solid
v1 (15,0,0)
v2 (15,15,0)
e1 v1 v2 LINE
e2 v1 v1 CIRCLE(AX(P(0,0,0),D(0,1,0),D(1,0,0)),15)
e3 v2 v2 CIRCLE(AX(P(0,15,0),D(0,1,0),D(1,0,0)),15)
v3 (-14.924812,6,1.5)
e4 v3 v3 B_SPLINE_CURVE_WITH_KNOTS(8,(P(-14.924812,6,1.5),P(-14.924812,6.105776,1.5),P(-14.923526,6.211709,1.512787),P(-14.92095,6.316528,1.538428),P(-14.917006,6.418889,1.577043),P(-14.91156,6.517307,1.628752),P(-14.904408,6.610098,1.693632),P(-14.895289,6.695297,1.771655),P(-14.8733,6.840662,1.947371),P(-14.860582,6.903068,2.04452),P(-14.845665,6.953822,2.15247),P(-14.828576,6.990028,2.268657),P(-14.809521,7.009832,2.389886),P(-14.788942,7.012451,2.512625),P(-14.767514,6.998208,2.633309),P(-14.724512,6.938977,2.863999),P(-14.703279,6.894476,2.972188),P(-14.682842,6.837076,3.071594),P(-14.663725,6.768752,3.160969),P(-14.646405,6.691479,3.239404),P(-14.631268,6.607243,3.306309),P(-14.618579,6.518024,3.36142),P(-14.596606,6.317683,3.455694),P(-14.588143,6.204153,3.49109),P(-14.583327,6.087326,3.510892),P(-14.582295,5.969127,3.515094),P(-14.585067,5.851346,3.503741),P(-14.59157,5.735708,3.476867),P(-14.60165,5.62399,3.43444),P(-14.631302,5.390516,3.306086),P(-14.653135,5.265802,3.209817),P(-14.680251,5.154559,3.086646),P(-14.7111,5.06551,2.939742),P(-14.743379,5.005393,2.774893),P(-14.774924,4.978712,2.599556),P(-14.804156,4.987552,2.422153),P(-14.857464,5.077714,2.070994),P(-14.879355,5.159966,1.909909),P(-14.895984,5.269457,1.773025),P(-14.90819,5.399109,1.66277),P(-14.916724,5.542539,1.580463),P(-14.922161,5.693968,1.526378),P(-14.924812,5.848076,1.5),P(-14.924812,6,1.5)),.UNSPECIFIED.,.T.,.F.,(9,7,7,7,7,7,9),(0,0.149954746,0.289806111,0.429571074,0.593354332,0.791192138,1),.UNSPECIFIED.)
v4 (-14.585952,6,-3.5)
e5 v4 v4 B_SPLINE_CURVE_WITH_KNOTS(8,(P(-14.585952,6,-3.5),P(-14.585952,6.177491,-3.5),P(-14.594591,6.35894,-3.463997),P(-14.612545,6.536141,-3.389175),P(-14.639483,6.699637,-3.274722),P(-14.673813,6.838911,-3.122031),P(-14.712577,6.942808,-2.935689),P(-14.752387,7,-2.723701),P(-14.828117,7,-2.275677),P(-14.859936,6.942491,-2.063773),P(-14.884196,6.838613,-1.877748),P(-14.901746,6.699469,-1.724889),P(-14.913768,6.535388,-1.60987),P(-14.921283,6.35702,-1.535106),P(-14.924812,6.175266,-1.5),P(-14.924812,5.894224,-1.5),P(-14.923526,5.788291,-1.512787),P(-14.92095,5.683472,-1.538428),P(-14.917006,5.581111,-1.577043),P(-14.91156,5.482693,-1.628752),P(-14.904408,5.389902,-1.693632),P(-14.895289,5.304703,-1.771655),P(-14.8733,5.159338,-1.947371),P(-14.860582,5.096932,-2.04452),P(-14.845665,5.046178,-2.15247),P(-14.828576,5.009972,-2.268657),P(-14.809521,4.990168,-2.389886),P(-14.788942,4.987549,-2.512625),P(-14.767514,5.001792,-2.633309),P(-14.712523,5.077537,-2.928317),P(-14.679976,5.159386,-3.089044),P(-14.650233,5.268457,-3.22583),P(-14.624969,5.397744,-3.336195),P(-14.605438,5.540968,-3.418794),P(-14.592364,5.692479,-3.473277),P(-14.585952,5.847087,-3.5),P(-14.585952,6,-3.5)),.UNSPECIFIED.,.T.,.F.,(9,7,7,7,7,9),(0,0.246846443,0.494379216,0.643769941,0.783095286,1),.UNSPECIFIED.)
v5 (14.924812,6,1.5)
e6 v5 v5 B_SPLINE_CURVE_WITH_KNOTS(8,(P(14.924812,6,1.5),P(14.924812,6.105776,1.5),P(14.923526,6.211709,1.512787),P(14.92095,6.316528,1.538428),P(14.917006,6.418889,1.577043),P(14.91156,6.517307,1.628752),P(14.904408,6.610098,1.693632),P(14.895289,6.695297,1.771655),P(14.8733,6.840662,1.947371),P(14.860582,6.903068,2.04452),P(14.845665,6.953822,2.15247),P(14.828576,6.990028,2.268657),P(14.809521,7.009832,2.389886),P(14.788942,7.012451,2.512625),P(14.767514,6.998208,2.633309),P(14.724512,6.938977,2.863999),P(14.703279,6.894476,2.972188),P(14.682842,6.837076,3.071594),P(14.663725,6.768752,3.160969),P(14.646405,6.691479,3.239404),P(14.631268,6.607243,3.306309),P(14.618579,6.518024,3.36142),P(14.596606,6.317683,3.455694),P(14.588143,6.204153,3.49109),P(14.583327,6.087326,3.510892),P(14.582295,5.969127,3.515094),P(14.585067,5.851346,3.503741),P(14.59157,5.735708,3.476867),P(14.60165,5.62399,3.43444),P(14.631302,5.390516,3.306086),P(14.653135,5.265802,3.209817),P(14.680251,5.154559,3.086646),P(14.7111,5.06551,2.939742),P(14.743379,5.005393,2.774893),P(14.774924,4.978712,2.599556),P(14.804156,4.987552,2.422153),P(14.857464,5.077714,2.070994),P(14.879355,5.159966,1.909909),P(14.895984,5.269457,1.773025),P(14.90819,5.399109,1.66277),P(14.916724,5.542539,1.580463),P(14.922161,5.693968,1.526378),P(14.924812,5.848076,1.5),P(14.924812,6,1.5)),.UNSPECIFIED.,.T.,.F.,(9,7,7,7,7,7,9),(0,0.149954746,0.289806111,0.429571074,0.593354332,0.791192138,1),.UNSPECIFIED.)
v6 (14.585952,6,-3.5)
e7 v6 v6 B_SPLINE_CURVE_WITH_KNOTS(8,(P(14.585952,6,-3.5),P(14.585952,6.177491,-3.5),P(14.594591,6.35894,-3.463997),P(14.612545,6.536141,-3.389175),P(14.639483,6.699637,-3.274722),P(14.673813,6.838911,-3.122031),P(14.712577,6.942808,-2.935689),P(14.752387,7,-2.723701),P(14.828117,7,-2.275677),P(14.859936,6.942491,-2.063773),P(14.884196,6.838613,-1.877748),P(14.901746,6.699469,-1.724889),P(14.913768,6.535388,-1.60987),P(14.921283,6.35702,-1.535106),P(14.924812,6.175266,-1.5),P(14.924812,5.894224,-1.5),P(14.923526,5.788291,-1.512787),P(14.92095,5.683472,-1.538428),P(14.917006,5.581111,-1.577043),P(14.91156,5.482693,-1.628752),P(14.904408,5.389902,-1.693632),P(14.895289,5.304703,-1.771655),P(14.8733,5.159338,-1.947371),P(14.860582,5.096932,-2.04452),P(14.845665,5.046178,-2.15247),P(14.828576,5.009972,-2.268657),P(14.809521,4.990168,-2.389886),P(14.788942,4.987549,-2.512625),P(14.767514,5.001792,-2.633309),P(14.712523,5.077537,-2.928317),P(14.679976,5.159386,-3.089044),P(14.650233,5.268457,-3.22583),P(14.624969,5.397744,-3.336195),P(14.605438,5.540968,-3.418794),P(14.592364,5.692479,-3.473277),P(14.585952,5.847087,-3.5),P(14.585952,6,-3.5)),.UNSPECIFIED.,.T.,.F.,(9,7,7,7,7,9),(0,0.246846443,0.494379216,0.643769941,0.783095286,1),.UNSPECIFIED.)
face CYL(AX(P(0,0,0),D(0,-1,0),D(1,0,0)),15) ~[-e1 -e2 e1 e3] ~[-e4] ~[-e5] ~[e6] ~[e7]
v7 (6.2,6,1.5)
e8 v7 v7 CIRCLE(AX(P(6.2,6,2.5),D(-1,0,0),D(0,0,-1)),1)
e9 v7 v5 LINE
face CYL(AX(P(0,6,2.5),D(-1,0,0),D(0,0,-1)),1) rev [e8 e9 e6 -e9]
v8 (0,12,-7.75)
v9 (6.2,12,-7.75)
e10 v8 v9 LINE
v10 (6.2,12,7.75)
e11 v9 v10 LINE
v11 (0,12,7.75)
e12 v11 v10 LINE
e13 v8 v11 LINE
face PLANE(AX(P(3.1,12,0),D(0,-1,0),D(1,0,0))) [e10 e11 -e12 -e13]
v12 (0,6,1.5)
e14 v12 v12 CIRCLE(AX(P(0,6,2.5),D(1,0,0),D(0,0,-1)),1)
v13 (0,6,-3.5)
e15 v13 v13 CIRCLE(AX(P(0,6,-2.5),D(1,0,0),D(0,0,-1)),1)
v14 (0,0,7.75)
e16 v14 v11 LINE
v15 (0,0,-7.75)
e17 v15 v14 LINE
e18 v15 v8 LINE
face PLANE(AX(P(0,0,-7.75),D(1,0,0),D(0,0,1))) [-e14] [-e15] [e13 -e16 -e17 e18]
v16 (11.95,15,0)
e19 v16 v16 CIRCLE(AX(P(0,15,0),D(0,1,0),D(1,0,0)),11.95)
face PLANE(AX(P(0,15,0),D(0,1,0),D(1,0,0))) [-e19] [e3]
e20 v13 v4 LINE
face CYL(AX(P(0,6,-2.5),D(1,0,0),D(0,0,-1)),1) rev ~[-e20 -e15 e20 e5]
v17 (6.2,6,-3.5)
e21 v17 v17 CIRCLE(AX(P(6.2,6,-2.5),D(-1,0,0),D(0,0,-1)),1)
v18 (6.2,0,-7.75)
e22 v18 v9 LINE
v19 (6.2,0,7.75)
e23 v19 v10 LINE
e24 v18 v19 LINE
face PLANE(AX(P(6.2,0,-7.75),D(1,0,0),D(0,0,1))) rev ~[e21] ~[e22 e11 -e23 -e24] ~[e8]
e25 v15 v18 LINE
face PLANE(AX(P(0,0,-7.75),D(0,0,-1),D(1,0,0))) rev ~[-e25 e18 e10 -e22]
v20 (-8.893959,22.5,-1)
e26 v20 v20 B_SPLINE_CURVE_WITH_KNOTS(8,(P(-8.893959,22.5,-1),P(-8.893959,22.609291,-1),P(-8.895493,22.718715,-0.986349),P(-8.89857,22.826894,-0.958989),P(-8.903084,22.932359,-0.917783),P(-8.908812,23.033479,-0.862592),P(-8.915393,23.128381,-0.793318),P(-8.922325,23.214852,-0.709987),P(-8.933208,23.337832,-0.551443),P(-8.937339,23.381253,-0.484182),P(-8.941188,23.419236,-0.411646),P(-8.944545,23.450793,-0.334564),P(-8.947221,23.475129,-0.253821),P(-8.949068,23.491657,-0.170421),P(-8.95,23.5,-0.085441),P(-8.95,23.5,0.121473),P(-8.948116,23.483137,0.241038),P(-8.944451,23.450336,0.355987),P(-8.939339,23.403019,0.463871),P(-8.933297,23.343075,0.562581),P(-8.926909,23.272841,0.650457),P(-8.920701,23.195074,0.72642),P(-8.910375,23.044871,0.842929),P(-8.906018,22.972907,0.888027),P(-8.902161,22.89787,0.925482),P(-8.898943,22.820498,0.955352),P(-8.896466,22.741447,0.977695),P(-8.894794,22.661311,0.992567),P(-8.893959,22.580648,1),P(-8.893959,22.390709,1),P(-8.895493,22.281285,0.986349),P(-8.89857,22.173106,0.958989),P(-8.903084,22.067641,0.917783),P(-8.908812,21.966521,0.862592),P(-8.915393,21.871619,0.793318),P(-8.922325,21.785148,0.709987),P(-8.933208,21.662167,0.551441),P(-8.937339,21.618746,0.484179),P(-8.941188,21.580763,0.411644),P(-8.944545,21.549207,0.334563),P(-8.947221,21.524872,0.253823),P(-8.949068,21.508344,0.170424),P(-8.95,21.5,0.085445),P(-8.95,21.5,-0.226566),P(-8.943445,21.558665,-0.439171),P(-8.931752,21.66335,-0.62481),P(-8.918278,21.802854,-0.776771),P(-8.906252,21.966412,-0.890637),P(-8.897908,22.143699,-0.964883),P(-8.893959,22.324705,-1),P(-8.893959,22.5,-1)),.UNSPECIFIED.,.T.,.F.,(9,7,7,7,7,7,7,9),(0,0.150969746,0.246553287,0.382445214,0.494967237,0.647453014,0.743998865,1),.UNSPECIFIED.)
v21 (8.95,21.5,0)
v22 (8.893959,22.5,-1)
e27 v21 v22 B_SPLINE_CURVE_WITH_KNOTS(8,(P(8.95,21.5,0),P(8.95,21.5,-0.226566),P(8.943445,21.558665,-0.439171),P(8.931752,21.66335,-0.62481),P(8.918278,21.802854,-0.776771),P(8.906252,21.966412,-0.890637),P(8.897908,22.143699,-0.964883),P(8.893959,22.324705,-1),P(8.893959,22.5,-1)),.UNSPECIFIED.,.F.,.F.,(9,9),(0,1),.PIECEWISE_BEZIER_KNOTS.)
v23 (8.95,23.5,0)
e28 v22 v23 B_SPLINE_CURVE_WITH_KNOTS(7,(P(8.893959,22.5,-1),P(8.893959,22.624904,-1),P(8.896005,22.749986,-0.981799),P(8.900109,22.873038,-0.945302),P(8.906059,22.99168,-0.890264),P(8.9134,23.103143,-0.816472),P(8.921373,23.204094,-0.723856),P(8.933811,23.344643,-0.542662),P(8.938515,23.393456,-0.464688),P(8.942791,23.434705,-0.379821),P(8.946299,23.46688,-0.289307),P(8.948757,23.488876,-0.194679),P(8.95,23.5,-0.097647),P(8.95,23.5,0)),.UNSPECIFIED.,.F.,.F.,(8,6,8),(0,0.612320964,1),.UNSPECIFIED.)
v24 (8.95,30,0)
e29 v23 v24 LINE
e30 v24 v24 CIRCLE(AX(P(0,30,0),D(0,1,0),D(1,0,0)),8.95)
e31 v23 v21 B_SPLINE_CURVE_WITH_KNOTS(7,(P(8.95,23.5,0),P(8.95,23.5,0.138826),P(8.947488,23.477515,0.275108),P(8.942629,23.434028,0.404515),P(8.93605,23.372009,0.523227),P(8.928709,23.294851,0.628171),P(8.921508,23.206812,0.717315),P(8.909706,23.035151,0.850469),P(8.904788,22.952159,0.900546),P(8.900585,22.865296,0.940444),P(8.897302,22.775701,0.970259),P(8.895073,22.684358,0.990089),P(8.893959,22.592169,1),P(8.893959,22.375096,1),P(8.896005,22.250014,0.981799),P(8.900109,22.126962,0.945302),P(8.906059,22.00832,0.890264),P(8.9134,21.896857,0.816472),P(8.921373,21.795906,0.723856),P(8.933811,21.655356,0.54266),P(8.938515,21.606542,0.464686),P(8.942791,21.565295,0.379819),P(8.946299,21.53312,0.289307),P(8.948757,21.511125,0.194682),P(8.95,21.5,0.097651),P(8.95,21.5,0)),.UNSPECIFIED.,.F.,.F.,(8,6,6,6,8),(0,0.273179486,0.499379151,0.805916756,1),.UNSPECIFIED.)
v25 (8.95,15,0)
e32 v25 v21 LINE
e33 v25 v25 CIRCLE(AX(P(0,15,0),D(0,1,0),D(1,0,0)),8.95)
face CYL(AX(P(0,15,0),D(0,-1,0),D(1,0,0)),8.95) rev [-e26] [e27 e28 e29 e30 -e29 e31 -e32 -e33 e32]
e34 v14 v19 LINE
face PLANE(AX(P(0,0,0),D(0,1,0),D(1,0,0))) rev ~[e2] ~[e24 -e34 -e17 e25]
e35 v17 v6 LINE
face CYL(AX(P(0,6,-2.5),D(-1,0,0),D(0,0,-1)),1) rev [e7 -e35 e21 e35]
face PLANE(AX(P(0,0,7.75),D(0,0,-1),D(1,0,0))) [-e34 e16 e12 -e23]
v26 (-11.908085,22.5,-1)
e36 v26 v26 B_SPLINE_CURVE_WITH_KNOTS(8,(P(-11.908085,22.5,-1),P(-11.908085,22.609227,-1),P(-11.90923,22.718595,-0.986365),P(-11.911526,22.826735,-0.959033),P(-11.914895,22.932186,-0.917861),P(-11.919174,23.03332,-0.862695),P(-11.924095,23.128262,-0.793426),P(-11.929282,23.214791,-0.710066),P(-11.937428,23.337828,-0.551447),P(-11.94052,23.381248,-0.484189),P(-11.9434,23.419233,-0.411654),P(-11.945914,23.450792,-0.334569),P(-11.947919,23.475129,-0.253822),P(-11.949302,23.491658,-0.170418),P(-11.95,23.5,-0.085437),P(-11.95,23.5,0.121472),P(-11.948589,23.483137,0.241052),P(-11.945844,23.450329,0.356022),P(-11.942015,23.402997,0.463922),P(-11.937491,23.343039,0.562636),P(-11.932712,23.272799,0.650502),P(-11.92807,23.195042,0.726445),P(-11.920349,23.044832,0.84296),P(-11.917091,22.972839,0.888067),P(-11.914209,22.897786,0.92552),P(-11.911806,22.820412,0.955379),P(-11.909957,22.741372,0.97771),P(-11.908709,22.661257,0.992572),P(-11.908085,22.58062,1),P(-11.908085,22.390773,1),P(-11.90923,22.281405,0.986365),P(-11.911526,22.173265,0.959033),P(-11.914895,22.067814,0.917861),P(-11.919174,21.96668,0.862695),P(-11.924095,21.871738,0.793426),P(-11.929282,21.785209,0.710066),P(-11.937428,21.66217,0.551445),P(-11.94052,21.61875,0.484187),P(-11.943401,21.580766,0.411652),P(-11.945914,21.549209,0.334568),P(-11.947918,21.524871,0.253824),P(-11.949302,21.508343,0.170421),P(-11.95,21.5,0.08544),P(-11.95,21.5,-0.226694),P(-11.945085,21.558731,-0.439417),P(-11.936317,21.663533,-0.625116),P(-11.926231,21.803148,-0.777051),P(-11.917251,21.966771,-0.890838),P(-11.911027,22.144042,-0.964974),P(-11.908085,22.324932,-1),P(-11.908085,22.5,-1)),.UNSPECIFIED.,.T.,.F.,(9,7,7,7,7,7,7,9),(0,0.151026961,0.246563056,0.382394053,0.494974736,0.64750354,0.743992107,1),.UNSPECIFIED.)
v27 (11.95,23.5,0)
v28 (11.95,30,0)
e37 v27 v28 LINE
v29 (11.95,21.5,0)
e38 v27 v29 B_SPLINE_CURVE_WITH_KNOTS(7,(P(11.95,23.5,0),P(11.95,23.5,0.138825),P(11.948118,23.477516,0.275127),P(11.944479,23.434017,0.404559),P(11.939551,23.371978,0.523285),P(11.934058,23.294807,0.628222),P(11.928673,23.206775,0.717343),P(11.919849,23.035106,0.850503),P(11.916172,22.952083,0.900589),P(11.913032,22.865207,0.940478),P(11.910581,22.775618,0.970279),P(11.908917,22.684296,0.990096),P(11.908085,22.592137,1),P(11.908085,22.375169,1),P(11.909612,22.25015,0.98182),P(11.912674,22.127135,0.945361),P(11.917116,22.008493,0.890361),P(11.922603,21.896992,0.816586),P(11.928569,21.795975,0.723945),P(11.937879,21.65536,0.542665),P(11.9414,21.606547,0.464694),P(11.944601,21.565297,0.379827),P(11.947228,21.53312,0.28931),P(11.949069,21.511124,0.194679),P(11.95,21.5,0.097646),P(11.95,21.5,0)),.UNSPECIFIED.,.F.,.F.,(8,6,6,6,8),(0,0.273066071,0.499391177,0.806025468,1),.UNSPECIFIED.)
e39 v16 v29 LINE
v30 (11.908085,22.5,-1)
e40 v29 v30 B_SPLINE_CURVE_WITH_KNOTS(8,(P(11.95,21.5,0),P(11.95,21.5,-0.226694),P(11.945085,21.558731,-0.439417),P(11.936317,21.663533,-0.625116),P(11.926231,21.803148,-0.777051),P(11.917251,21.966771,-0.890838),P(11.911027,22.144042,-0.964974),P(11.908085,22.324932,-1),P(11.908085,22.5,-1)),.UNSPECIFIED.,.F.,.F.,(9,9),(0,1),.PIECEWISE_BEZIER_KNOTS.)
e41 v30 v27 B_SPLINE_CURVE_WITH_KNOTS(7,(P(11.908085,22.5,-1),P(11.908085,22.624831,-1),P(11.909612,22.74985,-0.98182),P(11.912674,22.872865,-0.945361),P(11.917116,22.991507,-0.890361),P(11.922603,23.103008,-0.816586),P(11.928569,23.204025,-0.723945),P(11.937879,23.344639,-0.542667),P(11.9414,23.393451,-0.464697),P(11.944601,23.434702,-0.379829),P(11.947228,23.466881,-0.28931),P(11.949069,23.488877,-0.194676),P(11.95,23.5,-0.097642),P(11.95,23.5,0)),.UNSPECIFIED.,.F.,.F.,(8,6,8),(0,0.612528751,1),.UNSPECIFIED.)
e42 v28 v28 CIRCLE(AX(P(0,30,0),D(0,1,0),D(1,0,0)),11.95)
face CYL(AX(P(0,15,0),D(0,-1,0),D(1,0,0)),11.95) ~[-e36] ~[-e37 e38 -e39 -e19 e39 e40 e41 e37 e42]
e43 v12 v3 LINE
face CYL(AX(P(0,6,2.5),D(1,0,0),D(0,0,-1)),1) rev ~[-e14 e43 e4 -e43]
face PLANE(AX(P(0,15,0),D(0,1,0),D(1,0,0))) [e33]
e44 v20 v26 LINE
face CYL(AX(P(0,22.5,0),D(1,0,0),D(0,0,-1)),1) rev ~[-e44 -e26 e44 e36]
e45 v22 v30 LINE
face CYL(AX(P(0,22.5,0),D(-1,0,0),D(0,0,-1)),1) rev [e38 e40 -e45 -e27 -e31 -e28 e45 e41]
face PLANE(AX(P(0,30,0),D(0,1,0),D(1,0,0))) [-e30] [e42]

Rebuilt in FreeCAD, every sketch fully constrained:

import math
import FreeCAD as App
import Part
import Sketcher

V = App.Vector

doc = App.newDocument("Part")
body = doc.addObject("PartDesign::Body", "Body")

# Sketch on XZ plane
sketch1 = doc.addObject("Sketcher::SketchObject", "Sketch")
body.addObject(sketch1)
sketch1.AttachmentSupport = (doc.XZ_Plane, [""])
sketch1.MapMode = "FlatFace"
sketch1.addGeometry(Part.Circle(V(0, 0, 0), V(0, 0, 1), 15), False)
sketch1.addConstraint(Sketcher.Constraint("Coincident", 0, 3, -1, 1))
sketch1.addConstraint(Sketcher.Constraint("Diameter", 0, 30.0))
pad1 = doc.addObject("PartDesign::Pad", "Pad")
body.addObject(pad1)
pad1.Profile = sketch1
pad1.Length = 15
pad1.Reversed = True

# Sketch on XZ plane
sketch2 = doc.addObject("Sketcher::SketchObject", "Sketch001")
body.addObject(sketch2)
sketch2.AttachmentSupport = (doc.XZ_Plane, [""])
sketch2.MapMode = "FlatFace"
sketch2.AttachmentOffset = App.Placement(V(0, 0, -15), App.Rotation())
sketch2.addGeometry(Part.Circle(V(0, 0, 0), V(0, 0, 1), 12), False)
sketch2.addGeometry(Part.Circle(V(0, 0, 0), V(0, 0, 1), 9), False)
sketch2.addConstraint(Sketcher.Constraint("Coincident", 0, 3, -1, 1))
sketch2.addConstraint(Sketcher.Constraint("Coincident", 1, 3, -1, 1))
sketch2.addConstraint(Sketcher.Constraint("Diameter", 0, 23.9))
sketch2.addConstraint(Sketcher.Constraint("Diameter", 1, 17.9))
pad2 = doc.addObject("PartDesign::Pad", "Pad001")
body.addObject(pad2)
pad2.Profile = sketch2
pad2.Type = "TwoLengths"
pad2.Length = 15
pad2.Length2 = 3
pad2.Reversed = True

# Sketch on YZ plane
sketch3 = doc.addObject("Sketcher::SketchObject", "Sketch002")
body.addObject(sketch3)
sketch3.AttachmentSupport = (doc.YZ_Plane, [""])
sketch3.MapMode = "FlatFace"
sketch3.addGeometry(Part.Circle(V(22.5, 0, 0), V(0, 0, 1), 1), False)
sketch3.addGeometry(Part.Circle(V(6, 2.5, 0), V(0, 0, 1), 1), False)
sketch3.addGeometry(Part.Circle(V(6, -2.5, 0), V(0, 0, 1), 1), False)
sketch3.addConstraint(Sketcher.Constraint("Equal", 0, 1))
sketch3.addConstraint(Sketcher.Constraint("Equal", 1, 2))
sketch3.addConstraint(Sketcher.Constraint("Symmetric", 1, 3, 2, 3, -1))
sketch3.addConstraint(Sketcher.Constraint("PointOnObject", 0, 3, -1))
sketch3.addConstraint(Sketcher.Constraint("Diameter", 0, 2.0))
sketch3.addConstraint(Sketcher.Constraint("DistanceX", -1, 1, 1, 3, 6.0))
sketch3.addConstraint(Sketcher.Constraint("DistanceY", 2, 3, 1, 3, 5.0))
sketch3.addConstraint(Sketcher.Constraint("DistanceX", -1, 1, 0, 3, 22.5))
pocket1 = doc.addObject("PartDesign::Pocket", "Pocket")
body.addObject(pocket1)
pocket1.Profile = sketch3
pocket1.Type = "ThroughAll"
pocket1.Midplane = True

# Sketch on YZ plane
sketch4 = doc.addObject("Sketcher::SketchObject", "Sketch003")
body.addObject(sketch4)
sketch4.AttachmentSupport = (doc.YZ_Plane, [""])
sketch4.MapMode = "FlatFace"
sketch4.addGeometry(Part.LineSegment(V(0, -11, 0), V(0, 11, 0)), False)
sketch4.addGeometry(Part.LineSegment(V(0, 11, 0), V(-12, 11, 0)), False)
sketch4.addGeometry(Part.ArcOfCircle(Part.Circle(V(-12, 21, 0), V(0, 0, 1), 10), math.radians(-143), math.radians(-90)), False)
sketch4.addGeometry(Part.ArcOfCircle(Part.Circle(V(-40, 0, 0), V(0, 0, 1), 25), math.radians(37), math.radians(323)), False)
sketch4.addGeometry(Part.ArcOfCircle(Part.Circle(V(-12, -21, 0), V(0, 0, 1), 10), math.radians(90), math.radians(143)), False)
sketch4.addGeometry(Part.LineSegment(V(-12, -11, 0), V(0, -11, 0)), False)
sketch4.addGeometry(Part.Circle(V(-40, 0, 0), V(0, 0, 1), 11), False)
sketch4.addConstraint(Sketcher.Constraint("Coincident", 0, 2, 1, 1))
sketch4.addConstraint(Sketcher.Constraint("Tangent", 1, 2, 2, 2))
sketch4.addConstraint(Sketcher.Constraint("Tangent", 2, 1, 3, 1))
sketch4.addConstraint(Sketcher.Constraint("Tangent", 3, 2, 4, 2))
sketch4.addConstraint(Sketcher.Constraint("Tangent", 4, 1, 5, 1))
sketch4.addConstraint(Sketcher.Constraint("Coincident", 5, 2, 0, 1))
sketch4.addConstraint(Sketcher.Constraint("Vertical", 0))
sketch4.addConstraint(Sketcher.Constraint("Horizontal", 1))
sketch4.addConstraint(Sketcher.Constraint("Horizontal", 5))
sketch4.addConstraint(Sketcher.Constraint("Coincident", 6, 3, 3, 3))
sketch4.addConstraint(Sketcher.Constraint("Equal", 2, 4))
sketch4.addConstraint(Sketcher.Constraint("Symmetric", 0, 2, 5, 2, -1, 1))
sketch4.addConstraint(Sketcher.Constraint("PointOnObject", 3, 3, -1))
sketch4.addConstraint(Sketcher.Constraint("Diameter", 6, 22.0))
sketch4.addConstraint(Sketcher.Constraint("Radius", 2, 10.0))
sketch4.addConstraint(Sketcher.Constraint("Radius", 3, 25.0))
sketch4.addConstraint(Sketcher.Constraint("DistanceX", 1, 2, 1, 1, 12.0))
sketch4.addConstraint(Sketcher.Constraint("DistanceY", 0, 1, 0, 2, 22.0))
pad3 = doc.addObject("PartDesign::Pad", "Pad002")
body.addObject(pad3)
pad3.Profile = sketch4
pad3.Length = 5

# Sketch on YZ plane
sketch5 = doc.addObject("Sketcher::SketchObject", "Sketch004")
body.addObject(sketch5)
sketch5.AttachmentSupport = (doc.YZ_Plane, [""])
sketch5.MapMode = "FlatFace"
sketch5.AttachmentOffset = App.Placement(V(0, 0, 5), App.Rotation())
sketch5.addGeometry(Part.Circle(V(-50.6, -10.6, 0), V(0, 0, 1), 1.7), False)
sketch5.addGeometry(Part.Circle(V(-50.6, 10.6, 0), V(0, 0, 1), 1.7), False)
sketch5.addGeometry(Part.Circle(V(-29.4, 10.6, 0), V(0, 0, 1), 1.7), False)
sketch5.addGeometry(Part.Circle(V(-29.4, -10.6, 0), V(0, 0, 1), 1.7), False)
sketch5.addConstraint(Sketcher.Constraint("Equal", 0, 1))
sketch5.addConstraint(Sketcher.Constraint("Equal", 1, 2))
sketch5.addConstraint(Sketcher.Constraint("Equal", 2, 3))
sketch5.addConstraint(Sketcher.Constraint("Symmetric", 0, 3, 1, 3, -1))
sketch5.addConstraint(Sketcher.Constraint("Symmetric", 2, 3, 3, 3, -1))
sketch5.addConstraint(Sketcher.Constraint("Horizontal", 1, 3, 2, 3))
sketch5.addConstraint(Sketcher.Constraint("Diameter", 0, 3.4))
sketch5.addConstraint(Sketcher.Constraint("DistanceX", 0, 3, -1, 1, 50.606602))
sketch5.addConstraint(Sketcher.Constraint("DistanceY", 0, 3, -1, 1, 10.606602))
sketch5.addConstraint(Sketcher.Constraint("DistanceX", 2, 3, -1, 1, 29.393398))
doc.recompute()
hole = doc.addObject("PartDesign::Hole", "Hole")
body.addObject(hole)
hole.Profile = sketch5
hole.ThreadType = "None"
hole.Diameter = 3.4
hole.DepthType = "ThroughAll"

# Sketch on XZ plane
sketch6 = doc.addObject("Sketcher::SketchObject", "Sketch005")
body.addObject(sketch6)
sketch6.AttachmentSupport = (doc.XZ_Plane, [""])
sketch6.MapMode = "FlatFace"
sketch6.addGeometry(Part.Circle(V(0, 0, 0), V(0, 0, 1), 26), False)
sketch6.addConstraint(Sketcher.Constraint("Coincident", 0, 3, -1, 1))
sketch6.addConstraint(Sketcher.Constraint("Diameter", 0, 52.591995))
pocket2 = doc.addObject("PartDesign::Pocket", "Pocket001")
body.addObject(pocket2)
pocket2.Profile = sketch6
pocket2.Type = "ThroughAll"
pocket2.Reversed = True

# Sketch on XZ plane
sketch7 = doc.addObject("Sketcher::SketchObject", "Sketch006")
body.addObject(sketch7)
sketch7.AttachmentSupport = (doc.XZ_Plane, [""])
sketch7.MapMode = "FlatFace"
sketch7.addGeometry(Part.LineSegment(V(0, 8, 0), V(0, -8, 0)), False)
sketch7.addGeometry(Part.LineSegment(V(0, -8, 0), V(6, -8, 0)), False)
sketch7.addGeometry(Part.LineSegment(V(6, -8, 0), V(6, 8, 0)), False)
sketch7.addGeometry(Part.LineSegment(V(6, 8, 0), V(0, 8, 0)), False)
sketch7.addConstraint(Sketcher.Constraint("Coincident", 0, 2, 1, 1))
sketch7.addConstraint(Sketcher.Constraint("Coincident", 1, 2, 2, 1))
sketch7.addConstraint(Sketcher.Constraint("Coincident", 2, 2, 3, 1))
sketch7.addConstraint(Sketcher.Constraint("Coincident", 3, 2, 0, 1))
sketch7.addConstraint(Sketcher.Constraint("Vertical", 0))
sketch7.addConstraint(Sketcher.Constraint("Horizontal", 1))
sketch7.addConstraint(Sketcher.Constraint("Vertical", 2))
sketch7.addConstraint(Sketcher.Constraint("Horizontal", 3))
sketch7.addConstraint(Sketcher.Constraint("Symmetric", 0, 2, 3, 2, -1, 1))
sketch7.addConstraint(Sketcher.Constraint("DistanceX", 1, 1, 1, 2, 6.2))
sketch7.addConstraint(Sketcher.Constraint("DistanceY", 0, 2, 0, 1, 15.5))
pocket3 = doc.addObject("PartDesign::Pocket", "Pocket002")
body.addObject(pocket3)
pocket3.Profile = sketch7
pocket3.Length = 12

doc.recompute()
